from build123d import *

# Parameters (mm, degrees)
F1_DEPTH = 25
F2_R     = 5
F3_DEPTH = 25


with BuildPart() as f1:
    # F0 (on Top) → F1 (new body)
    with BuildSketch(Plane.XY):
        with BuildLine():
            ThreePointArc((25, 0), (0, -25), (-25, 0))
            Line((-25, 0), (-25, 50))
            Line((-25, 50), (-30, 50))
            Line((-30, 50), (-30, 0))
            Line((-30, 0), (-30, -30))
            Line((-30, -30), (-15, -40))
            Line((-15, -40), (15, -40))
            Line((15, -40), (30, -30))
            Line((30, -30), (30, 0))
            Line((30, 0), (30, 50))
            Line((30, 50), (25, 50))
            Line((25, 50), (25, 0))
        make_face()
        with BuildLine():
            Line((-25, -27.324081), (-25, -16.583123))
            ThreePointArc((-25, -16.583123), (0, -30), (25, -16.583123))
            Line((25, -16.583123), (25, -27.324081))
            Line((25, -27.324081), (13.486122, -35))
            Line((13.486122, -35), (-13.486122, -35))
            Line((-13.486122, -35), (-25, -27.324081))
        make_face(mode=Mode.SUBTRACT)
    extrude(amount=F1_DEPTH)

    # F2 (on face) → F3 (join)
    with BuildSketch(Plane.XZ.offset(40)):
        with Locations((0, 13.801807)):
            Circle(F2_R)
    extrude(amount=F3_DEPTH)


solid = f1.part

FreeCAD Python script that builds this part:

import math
import FreeCAD as App
import Part
import Sketcher

V = App.Vector

doc = App.newDocument("Part")
params = doc.addObject("Spreadsheet::Sheet", "Params")
for row, (alias, value) in enumerate([
    ("sketch1_radius", "25 mm"),
    ("sketch1_radius2", "29.999999 mm"),
    ("sketch1_width", "5 mm"),
    ("sketch1_width2", "30 mm"),
    ("sketch1_height", "50 mm"),
    ("pad1_length", "25 mm"),
    ("sketch2_diameter", "10 mm"),
    ("pad2_length", "25 mm"),
], start=1):
    params.set(f"A{row}", alias)
    params.set(f"B{row}", "=" + value)
    params.setAlias(f"B{row}", alias)

body = doc.addObject("PartDesign::Body", "Body")

sketch1 = body.newObject("Sketcher::SketchObject", "Sketch")
sketch1.AttachmentSupport = (doc.getObject("XY_Plane"), [""])
sketch1.MapMode = "FlatFace"
sketch1.addGeometry(Part.ArcOfCircle(Part.Circle(V(0, 0, 0), V(0, 0, 1), 25), math.radians(180), math.radians(360)), False)
sketch1.addGeometry(Part.LineSegment(V(-25, 0, 0), V(-25, 50, 0)), False)
sketch1.addGeometry(Part.LineSegment(V(-25, 50, 0), V(-30, 50, 0)), False)
sketch1.addGeometry(Part.LineSegment(V(-30, 50, 0), V(-30, -30, 0)), False)
sketch1.addGeometry(Part.LineSegment(V(-30, -30, 0), V(-15, -40, 0)), False)
sketch1.addGeometry(Part.LineSegment(V(-15, -40, 0), V(15, -40, 0)), False)
sketch1.addGeometry(Part.LineSegment(V(15, -40, 0), V(30, -30, 0)), False)
sketch1.addGeometry(Part.LineSegment(V(30, -30, 0), V(30, 50, 0)), False)
sketch1.addGeometry(Part.LineSegment(V(30, 50, 0), V(25, 50, 0)), False)
sketch1.addGeometry(Part.LineSegment(V(25, 50, 0), V(25, 0, 0)), False)
sketch1.addGeometry(Part.LineSegment(V(-13.486122, -35, 0), V(-25, -27.324081, 0)), False)
sketch1.addGeometry(Part.LineSegment(V(-25, -27.324081, 0), V(-25, -16.583123, 0)), False)
sketch1.addGeometry(Part.ArcOfCircle(Part.Circle(V(0, -0.000001, 0), V(0, 0, 1), 29.999999), math.radians(-146.442694), math.radians(-33.557306)), False)
sketch1.addGeometry(Part.LineSegment(V(25, -16.583123, 0), V(25, -27.324081, 0)), False)
sketch1.addGeometry(Part.LineSegment(V(25, -27.324081, 0), V(13.486122, -35, 0)), False)
sketch1.addGeometry(Part.LineSegment(V(13.486122, -35, 0), V(-13.486122, -35, 0)), False)
sketch1.addConstraint(Sketcher.Constraint("Tangent", 0, 1, 1, 1))
sketch1.addConstraint(Sketcher.Constraint("Coincident", 1, 2, 2, 1))
sketch1.addConstraint(Sketcher.Constraint("Coincident", 2, 2, 3, 1))
sketch1.addConstraint(Sketcher.Constraint("Coincident", 3, 2, 4, 1))
sketch1.addConstraint(Sketcher.Constraint("Coincident", 4, 2, 5, 1))
sketch1.addConstraint(Sketcher.Constraint("Coincident", 5, 2, 6, 1))
sketch1.addConstraint(Sketcher.Constraint("Coincident", 6, 2, 7, 1))
sketch1.addConstraint(Sketcher.Constraint("Coincident", 7, 2, 8, 1))
sketch1.addConstraint(Sketcher.Constraint("Coincident", 8, 2, 9, 1))
sketch1.addConstraint(Sketcher.Constraint("Tangent", 9, 2, 0, 2))
sketch1.addConstraint(Sketcher.Constraint("Coincident", 10, 2, 11, 1))
sketch1.addConstraint(Sketcher.Constraint("Coincident", 11, 2, 12, 1))
sketch1.addConstraint(Sketcher.Constraint("Coincident", 12, 2, 13, 1))
sketch1.addConstraint(Sketcher.Constraint("Coincident", 13, 2, 14, 1))
sketch1.addConstraint(Sketcher.Constraint("Coincident", 14, 2, 15, 1))
sketch1.addConstraint(Sketcher.Constraint("Coincident", 15, 2, 10, 1))
sketch1.addConstraint(Sketcher.Constraint("Vertical", 1))
sketch1.addConstraint(Sketcher.Constraint("Horizontal", 2))
sketch1.addConstraint(Sketcher.Constraint("Vertical", 3))
sketch1.addConstraint(Sketcher.Constraint("Horizontal", 5))
sketch1.addConstraint(Sketcher.Constraint("Vertical", 7))
sketch1.addConstraint(Sketcher.Constraint("Horizontal", 8))
sketch1.addConstraint(Sketcher.Constraint("Vertical", 9))
sketch1.addConstraint(Sketcher.Constraint("Vertical", 11))
sketch1.addConstraint(Sketcher.Constraint("Vertical", 13))
sketch1.addConstraint(Sketcher.Constraint("Horizontal", 15))
sketch1.addConstraint(Sketcher.Constraint("Coincident", 0, 3, -1, 1))
sketch1.addConstraint(Sketcher.Constraint("Coincident", 12, 3, -1, 1))
sketch1.addConstraint(Sketcher.Constraint("Symmetric", 3, 2, 6, 2, -2))
sketch1.addConstraint(Sketcher.Constraint("Symmetric", 10, 2, 13, 2, -2))
sketch1.addConstraint(Sketcher.Constraint("Parallel", 4, 10))
sketch1.addConstraint(Sketcher.Constraint("Parallel", 6, 14))
sketch1.addConstraint(Sketcher.Constraint("Horizontal", 2, 2, 7, 2))
sketch1.addConstraint(Sketcher.Constraint("Vertical", 1, 2, 10, 2))
sketch1.addConstraint(Sketcher.Constraint("Equal", 4, 6))
sketch1.addConstraint(Sketcher.Constraint("Radius", 0, 25.0))
sketch1.addConstraint(Sketcher.Constraint("Radius", 12, 29.999999))
sketch1.addConstraint(Sketcher.Constraint("DistanceX", 2, 2, 2, 1, 5.0))
sketch1.addConstraint(Sketcher.Constraint("DistanceX", 5, 1, 5, 2, 30.0))
sketch1.addConstraint(Sketcher.Constraint("DistanceY", 1, 1, 1, 2, 50.0))
sketch1.addConstraint(Sketcher.Constraint("DistanceY", 3, 2, 3, 1, 80.0))
sketch1.addConstraint(Sketcher.Constraint("DistanceY", 4, 2, -1, 1, 40.0))
sketch1.addConstraint(Sketcher.Constraint("DistanceY", 14, 2, -1, 1, 35.0))
sketch1.addConstraint(Sketcher.Constraint("Distance", 10, 13.837959))
sketch1.setExpression("Constraints[35]", "Params.sketch1_radius")
sketch1.setExpression("Constraints[36]", "Params.sketch1_radius2")
sketch1.setExpression("Constraints[37]", "Params.sketch1_width")
sketch1.setExpression("Constraints[38]", "Params.sketch1_width2")
sketch1.setExpression("Constraints[39]", "Params.sketch1_height")
pad1 = body.newObject("PartDesign::Pad", "Pad")
pad1.Profile = sketch1
pad1.setExpression("Length", "Params.pad1_length")

sketch2 = body.newObject("Sketcher::SketchObject", "Sketch001")
sketch2.AttachmentSupport = (doc.getObject("XZ_Plane"), [""])
sketch2.MapMode = "FlatFace"
sketch2.AttachmentOffset = App.Placement(V(0, 0, 40), App.Rotation())
sketch2.addGeometry(Part.Circle(V(0, 13.801807, 0), V(0, 0, 1), 5), False)
sketch2.addConstraint(Sketcher.Constraint("PointOnObject", 0, 3, -2))
sketch2.addConstraint(Sketcher.Constraint("Diameter", 0, 10.0))
sketch2.addConstraint(Sketcher.Constraint("DistanceY", -1, 1, 0, 3, 13.801807))
sketch2.setExpression("Constraints[1]", "Params.sketch2_diameter")
pad2 = body.newObject("PartDesign::Pad", "Pad001")
pad2.Profile = sketch2
pad2.setExpression("Length", "Params.pad2_length")

doc.recompute()
